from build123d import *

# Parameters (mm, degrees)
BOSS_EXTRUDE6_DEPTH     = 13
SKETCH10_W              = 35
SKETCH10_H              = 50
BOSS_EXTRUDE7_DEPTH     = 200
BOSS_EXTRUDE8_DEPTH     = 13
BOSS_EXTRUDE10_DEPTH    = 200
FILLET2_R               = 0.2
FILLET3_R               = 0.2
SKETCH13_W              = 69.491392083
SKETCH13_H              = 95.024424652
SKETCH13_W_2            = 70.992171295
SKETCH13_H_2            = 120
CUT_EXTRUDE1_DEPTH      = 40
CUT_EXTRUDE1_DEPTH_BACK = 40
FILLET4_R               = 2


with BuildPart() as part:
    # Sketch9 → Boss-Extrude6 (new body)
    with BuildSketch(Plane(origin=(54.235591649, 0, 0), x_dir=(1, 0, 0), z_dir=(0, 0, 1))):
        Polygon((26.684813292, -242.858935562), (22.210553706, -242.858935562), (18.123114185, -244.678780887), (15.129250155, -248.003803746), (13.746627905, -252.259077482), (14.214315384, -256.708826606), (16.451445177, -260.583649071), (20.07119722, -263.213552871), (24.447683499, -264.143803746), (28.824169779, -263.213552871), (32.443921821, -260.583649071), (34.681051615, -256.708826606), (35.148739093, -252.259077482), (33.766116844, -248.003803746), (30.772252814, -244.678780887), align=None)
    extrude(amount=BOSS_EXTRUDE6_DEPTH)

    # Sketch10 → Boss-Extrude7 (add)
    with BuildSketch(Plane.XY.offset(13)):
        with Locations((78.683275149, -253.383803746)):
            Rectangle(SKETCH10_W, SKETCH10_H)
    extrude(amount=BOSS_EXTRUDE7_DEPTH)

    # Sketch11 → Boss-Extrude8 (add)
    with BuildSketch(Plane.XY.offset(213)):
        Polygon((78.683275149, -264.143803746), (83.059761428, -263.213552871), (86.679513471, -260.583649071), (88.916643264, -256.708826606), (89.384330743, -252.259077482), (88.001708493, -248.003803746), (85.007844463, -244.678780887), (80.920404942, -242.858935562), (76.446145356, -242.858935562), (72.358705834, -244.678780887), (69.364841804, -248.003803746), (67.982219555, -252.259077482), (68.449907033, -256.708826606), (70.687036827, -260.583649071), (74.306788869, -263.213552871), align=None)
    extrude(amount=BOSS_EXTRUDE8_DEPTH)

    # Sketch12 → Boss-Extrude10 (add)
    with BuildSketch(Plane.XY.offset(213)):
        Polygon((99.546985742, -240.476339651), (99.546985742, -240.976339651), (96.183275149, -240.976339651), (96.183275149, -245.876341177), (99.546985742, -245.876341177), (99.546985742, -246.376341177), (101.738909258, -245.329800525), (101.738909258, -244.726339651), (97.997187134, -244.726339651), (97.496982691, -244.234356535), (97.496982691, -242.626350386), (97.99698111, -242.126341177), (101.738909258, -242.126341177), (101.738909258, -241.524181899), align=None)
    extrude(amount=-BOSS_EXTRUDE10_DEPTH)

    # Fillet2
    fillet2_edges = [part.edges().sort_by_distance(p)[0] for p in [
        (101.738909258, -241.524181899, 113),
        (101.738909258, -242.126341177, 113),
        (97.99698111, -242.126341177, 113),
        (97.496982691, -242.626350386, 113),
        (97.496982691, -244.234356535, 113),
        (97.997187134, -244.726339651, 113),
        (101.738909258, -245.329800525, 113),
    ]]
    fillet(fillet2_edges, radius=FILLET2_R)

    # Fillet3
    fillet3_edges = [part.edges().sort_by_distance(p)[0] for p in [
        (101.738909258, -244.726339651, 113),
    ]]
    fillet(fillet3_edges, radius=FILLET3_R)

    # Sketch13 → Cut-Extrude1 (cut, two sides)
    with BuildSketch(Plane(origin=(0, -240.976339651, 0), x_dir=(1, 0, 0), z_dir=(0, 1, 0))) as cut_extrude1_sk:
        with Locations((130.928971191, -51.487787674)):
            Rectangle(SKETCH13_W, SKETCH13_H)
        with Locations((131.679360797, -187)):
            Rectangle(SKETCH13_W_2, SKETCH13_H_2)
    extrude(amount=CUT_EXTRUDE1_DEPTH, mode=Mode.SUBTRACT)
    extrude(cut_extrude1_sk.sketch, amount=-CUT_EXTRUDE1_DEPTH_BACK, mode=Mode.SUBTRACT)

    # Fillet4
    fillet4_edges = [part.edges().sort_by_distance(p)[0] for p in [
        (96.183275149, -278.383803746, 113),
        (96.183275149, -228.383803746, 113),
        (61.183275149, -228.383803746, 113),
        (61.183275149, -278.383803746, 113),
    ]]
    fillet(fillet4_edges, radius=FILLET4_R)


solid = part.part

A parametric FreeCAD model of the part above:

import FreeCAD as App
import Part
import Sketcher

V = App.Vector
Q = App.Units.Quantity


def edges_at(feature, points):
    """Names of the edges that pass closest to the given points."""
    edges = feature.Shape.Edges
    near = lambda p: min(range(len(edges)), key=lambda i: edges[i].distToShape(Part.Vertex(*p))[0])
    return sorted({f"Edge{near(p) + 1}" for p in points})


def add_polygon(sketch, points):
    """Adds a closed chain of lines whose ends are joined by coincident constraints."""
    first, n = sketch.GeometryCount, len(points)
    for a, b in zip(points, points[1:] + points[:1]):
        sketch.addGeometry(Part.LineSegment(App.Vector(*a, 0), App.Vector(*b, 0)), False)
    for i in range(n):
        sketch.addConstraint(Sketcher.Constraint("Coincident", first + i, 2, first + (i + 1) % n, 1))

doc = App.newDocument("Part")
body = doc.addObject("PartDesign::Body", "Body")

sketch1 = body.newObject("Sketcher::SketchObject", "Sketch")
sketch1.AttachmentSupport = (doc.getObject("XY_Plane"), [""])
sketch1.MapMode = "FlatFace"
add_polygon(sketch1, [(80.9, -242.9), (76.4, -242.9), (72.4, -244.7), (69.4, -248), (68, -252.3), (68.4, -256.7), (70.7, -260.6), (74.3, -263.2), (78.7, -264.1), (83.1, -263.2), (86.7, -260.6), (88.9, -256.7), (89.4, -252.3), (88, -248), (85, -244.7)])
sketch1.addConstraint(Sketcher.Constraint("Horizontal", 0))
sketch1.addConstraint(Sketcher.Constraint("Horizontal", 6, 2, 8, 2))
sketch1.addConstraint(Sketcher.Constraint("Horizontal", 5, 2, 9, 2))
sketch1.addConstraint(Sketcher.Constraint("Horizontal", 4, 2, 10, 2))
sketch1.addConstraint(Sketcher.Constraint("Horizontal", 3, 2, 11, 2))
sketch1.addConstraint(Sketcher.Constraint("Horizontal", 2, 2, 12, 2))
sketch1.addConstraint(Sketcher.Constraint("Horizontal", 1, 2, 13, 2))
sketch1.addConstraint(Sketcher.Constraint("Equal", 1, 2))
sketch1.addConstraint(Sketcher.Constraint("Equal", 2, 3))
sketch1.addConstraint(Sketcher.Constraint("Equal", 3, 4))
sketch1.addConstraint(Sketcher.Constraint("Equal", 4, 5))
sketch1.addConstraint(Sketcher.Constraint("Equal", 5, 6))
sketch1.addConstraint(Sketcher.Constraint("Equal", 6, 7))
sketch1.addConstraint(Sketcher.Constraint("Equal", 7, 8))
sketch1.addConstraint(Sketcher.Constraint("Equal", 8, 9))
sketch1.addConstraint(Sketcher.Constraint("Equal", 9, 10))
sketch1.addConstraint(Sketcher.Constraint("Equal", 10, 11))
sketch1.addConstraint(Sketcher.Constraint("Equal", 11, 12))
sketch1.addConstraint(Sketcher.Constraint("Equal", 12, 13))
sketch1.addConstraint(Sketcher.Constraint("Equal", 13, 14))
sketch1.addConstraint(Sketcher.Constraint("Angle", 1, Q("-156 deg")))
sketch1.addConstraint(Sketcher.Constraint("Angle", 2, Q("-132 deg")))
sketch1.addConstraint(Sketcher.Constraint("Angle", 3, Q("-108 deg")))
sketch1.addConstraint(Sketcher.Constraint("Angle", 4, Q("-84 deg")))
sketch1.addConstraint(Sketcher.Constraint("Angle", 5, Q("-60 deg")))
sketch1.addConstraint(Sketcher.Constraint("Angle", 6, Q("-36 deg")))
sketch1.addConstraint(Sketcher.Constraint("Angle", 7, Q("-12 deg")))
sketch1.addConstraint(Sketcher.Constraint("DistanceY", 7, 2, 2, 2, 16.14))
sketch1.addConstraint(Sketcher.Constraint("DistanceY", 1, 2, -1, 1, 244.678781))
sketch1.addConstraint(Sketcher.Constraint("DistanceX", -1, 1, 2, 2, 69.364842))
pad1 = body.newObject("PartDesign::Pad", "Pad")
pad1.Profile = sketch1
pad1.Length = 13

sketch2 = body.newObject("Sketcher::SketchObject", "Sketch001")
sketch2.AttachmentSupport = (doc.getObject("XY_Plane"), [""])
sketch2.MapMode = "FlatFace"
sketch2.AttachmentOffset = App.Placement(V(0, 0, 13), App.Rotation())
add_polygon(sketch2, [(61, -228), (61, -278), (96, -278), (96, -228)])
sketch2.addConstraint(Sketcher.Constraint("Vertical", 0))
sketch2.addConstraint(Sketcher.Constraint("Horizontal", 1))
sketch2.addConstraint(Sketcher.Constraint("Vertical", 2))
sketch2.addConstraint(Sketcher.Constraint("Horizontal", 3))
sketch2.addConstraint(Sketcher.Constraint("DistanceX", 1, 1, 1, 2, 35.0))
sketch2.addConstraint(Sketcher.Constraint("DistanceY", 0, 2, 0, 1, 50.0))
sketch2.addConstraint(Sketcher.Constraint("DistanceX", -1, 1, 0, 2, 61.183275))
sketch2.addConstraint(Sketcher.Constraint("DistanceY", 0, 2, -1, 1, 278.383804))
pad2 = body.newObject("PartDesign::Pad", "Pad001")
pad2.Profile = sketch2
pad2.Length = 200

sketch3 = body.newObject("Sketcher::SketchObject", "Sketch002")
sketch3.AttachmentSupport = (doc.getObject("XY_Plane"), [""])
sketch3.MapMode = "FlatFace"
sketch3.AttachmentOffset = App.Placement(V(0, 0, 213), App.Rotation())
add_polygon(sketch3, [(78.7, -264.1), (83.1, -263.2), (86.7, -260.6), (88.9, -256.7), (89.4, -252.3), (88, -248), (85, -244.7), (80.9, -242.9), (76.4, -242.9), (72.4, -244.7), (69.4, -248), (68, -252.3), (68.4, -256.7), (70.7, -260.6), (74.3, -263.2)])
sketch3.addConstraint(Sketcher.Constraint("Horizontal", 7))
sketch3.addConstraint(Sketcher.Constraint("Horizontal", 5, 2, 8, 2))
sketch3.addConstraint(Sketcher.Constraint("Horizontal", 4, 2, 9, 2))
sketch3.addConstraint(Sketcher.Constraint("Horizontal", 3, 2, 10, 2))
sketch3.addConstraint(Sketcher.Constraint("Horizontal", 2, 2, 11, 2))
sketch3.addConstraint(Sketcher.Constraint("Horizontal", 1, 2, 12, 2))
sketch3.addConstraint(Sketcher.Constraint("Horizontal", 0, 2, 13, 2))
sketch3.addConstraint(Sketcher.Constraint("Equal", 0, 1))
sketch3.addConstraint(Sketcher.Constraint("Equal", 1, 2))
sketch3.addConstraint(Sketcher.Constraint("Equal", 2, 3))
sketch3.addConstraint(Sketcher.Constraint("Equal", 3, 4))
sketch3.addConstraint(Sketcher.Constraint("Equal", 4, 5))
sketch3.addConstraint(Sketcher.Constraint("Equal", 5, 6))
sketch3.addConstraint(Sketcher.Constraint("Equal", 6, 8))
sketch3.addConstraint(Sketcher.Constraint("Equal", 8, 9))
sketch3.addConstraint(Sketcher.Constraint("Equal", 9, 10))
sketch3.addConstraint(Sketcher.Constraint("Equal", 10, 11))
sketch3.addConstraint(Sketcher.Constraint("Equal", 11, 12))
sketch3.addConstraint(Sketcher.Constraint("Equal", 12, 13))
sketch3.addConstraint(Sketcher.Constraint("Equal", 13, 14))
sketch3.addConstraint(Sketcher.Constraint("Angle", 0, Q("12 deg")))
sketch3.addConstraint(Sketcher.Constraint("Angle", 1, Q("36 deg")))
sketch3.addConstraint(Sketcher.Constraint("Angle", 2, Q("60 deg")))
sketch3.addConstraint(Sketcher.Constraint("Angle", 3, Q("84 deg")))
sketch3.addConstraint(Sketcher.Constraint("Angle", 4, Q("108 deg")))
sketch3.addConstraint(Sketcher.Constraint("Angle", 5, Q("132 deg")))
sketch3.addConstraint(Sketcher.Constraint("Angle", 6, Q("156 deg")))
sketch3.addConstraint(Sketcher.Constraint("DistanceX", 7, 2, 7, 1, 4.47426))
sketch3.addConstraint(Sketcher.Constraint("DistanceX", -1, 1, 0, 2, 83.059761))
sketch3.addConstraint(Sketcher.Constraint("DistanceY", 1, 2, -1, 1, 260.583649))
pad3 = body.newObject("PartDesign::Pad", "Pad002")
pad3.Profile = sketch3
pad3.Length = 13

sketch4 = body.newObject("Sketcher::SketchObject", "Sketch003")
sketch4.AttachmentSupport = (doc.getObject("XY_Plane"), [""])
sketch4.MapMode = "FlatFace"
sketch4.AttachmentOffset = App.Placement(V(0, 0, 213), App.Rotation())
add_polygon(sketch4, [(99.5, -240.5), (99.5, -241), (96.2, -241), (96.2, -245.9), (99.5, -245.9), (99.5, -246.4), (101.7, -245.3), (101.7, -244.7), (98, -244.7), (97.5, -244.2), (97.5, -242.6), (98, -242.1), (101.7, -242.1), (101.7, -241.5)])
sketch4.addConstraint(Sketcher.Constraint("Vertical", 0))
sketch4.addConstraint(Sketcher.Constraint("Horizontal", 1))
sketch4.addConstraint(Sketcher.Constraint("Vertical", 2))
sketch4.addConstraint(Sketcher.Constraint("Horizontal", 3))
sketch4.addConstraint(Sketcher.Constraint("Vertical", 4))
sketch4.addConstraint(Sketcher.Constraint("Vertical", 6))
sketch4.addConstraint(Sketcher.Constraint("Horizontal", 7))
sketch4.addConstraint(Sketcher.Constraint("Vertical", 9))
sketch4.addConstraint(Sketcher.Constraint("Horizontal", 11))
sketch4.addConstraint(Sketcher.Constraint("Vertical", 12))
sketch4.addConstraint(Sketcher.Constraint("Vertical", 0, 2, 3, 2))
sketch4.addConstraint(Sketcher.Constraint("Vertical", 6, 2, 11, 2))
sketch4.addConstraint(Sketcher.Constraint("Equal", 0, 4))
sketch4.addConstraint(Sketcher.Constraint("DistanceY", 0, 2, 0, 1, 0.5))
sketch4.addConstraint(Sketcher.Constraint("DistanceY", 2, 2, 2, 1, 4.900002))
sketch4.addConstraint(Sketcher.Constraint("Angle", 13, Q("154.450013 deg")))
sketch4.addConstraint(Sketcher.Constraint("DistanceX", 9, 2, 10, 2, 0.499998))
sketch4.addConstraint(Sketcher.Constraint("DistanceY", 7, 2, 10, 2, 2.599998))
sketch4.addConstraint(Sketcher.Constraint("DistanceY", 3, 2, 6, 2, 1.150002))
sketch4.addConstraint(Sketcher.Constraint("DistanceX", 1, 2, 1, 1, 3.363711))
sketch4.addConstraint(Sketcher.Constraint("DistanceX", 11, 1, 11, 2, 3.741928))
sketch4.addConstraint(Sketcher.Constraint("DistanceY", 6, 1, 6, 2, 0.603461))
sketch4.addConstraint(Sketcher.Constraint("DistanceY", 12, 1, 12, 2, 0.602159))
sketch4.addConstraint(Sketcher.Constraint("DistanceY", 5, 2, -1, 1, 245.329801))
sketch4.addConstraint(Sketcher.Constraint("DistanceX", 7, 2, 3, 2, 1.549799))
sketch4.addConstraint(Sketcher.Constraint("DistanceY", 9, 1, 9, 2, 1.608006))
sketch4.addConstraint(Sketcher.Constraint("DistanceX", -1, 1, 5, 2, 101.738909))
sketch4.addConstraint(Sketcher.Constraint("DistanceY", 9, 2, -1, 1, 242.62635))
pad4 = body.newObject("PartDesign::Pad", "Pad003")
pad4.Profile = sketch4
pad4.Length = 200
pad4.Reversed = True
doc.recompute()

fillet = body.newObject("PartDesign::Fillet", "Fillet")
fillet.Base = (pad4, edges_at(pad4, [
    (101.739, -241.524, 113),
    (101.739, -242.126, 113),
    (97.997, -242.126, 113),
    (97.497, -242.626, 113),
    (97.497, -244.234, 113),
    (97.997, -244.726, 113),
    (101.739, -245.33, 113),
]))
fillet.Radius = 0.2
doc.recompute()

fillet2 = body.newObject("PartDesign::Fillet", "Fillet001")
fillet2.Base = (fillet, edges_at(fillet, [(101.739, -244.726, 113)]))
fillet2.Radius = 0.2

sketch5 = body.newObject("Sketcher::SketchObject", "Sketch004")
sketch5.AttachmentSupport = (doc.getObject("XZ_Plane"), [""])
sketch5.MapMode = "FlatFace"
sketch5.AttachmentOffset = App.Placement(V(0, 0, 240.97634), App.Rotation())
add_polygon(sketch5, [(96, 4), (96, 99), (166, 99), (166, 4)])
add_polygon(sketch5, [(96, 127), (96, 247), (167, 247), (167, 127)])
sketch5.addConstraint(Sketcher.Constraint("Vertical", 0))
sketch5.addConstraint(Sketcher.Constraint("Horizontal", 1))
sketch5.addConstraint(Sketcher.Constraint("Vertical", 2))
sketch5.addConstraint(Sketcher.Constraint("Horizontal", 3))
sketch5.addConstraint(Sketcher.Constraint("Vertical", 4))
sketch5.addConstraint(Sketcher.Constraint("Horizontal", 5))
sketch5.addConstraint(Sketcher.Constraint("Vertical", 6))
sketch5.addConstraint(Sketcher.Constraint("Horizontal", 7))
sketch5.addConstraint(Sketcher.Constraint("Vertical", 3, 2, 4, 2))
sketch5.addConstraint(Sketcher.Constraint("DistanceY", 4, 1, 4, 2, 120.0))
sketch5.addConstraint(Sketcher.Constraint("DistanceY", -1, 1, 0, 2, 99.0))
sketch5.addConstraint(Sketcher.Constraint("DistanceY", -1, 1, 4, 2, 247.0))
sketch5.addConstraint(Sketcher.Constraint("DistanceX", 5, 1, 5, 2, 70.992171))
sketch5.addConstraint(Sketcher.Constraint("DistanceX", 1, 1, 1, 2, 69.491392))
sketch5.addConstraint(Sketcher.Constraint("DistanceY", 0, 1, 0, 2, 95.024425))
sketch5.addConstraint(Sketcher.Constraint("DistanceX", -1, 1, 0, 2, 96.183275))
pocket1 = body.newObject("PartDesign::Pocket", "Pocket")
pocket1.Profile = sketch5
pocket1.Type = "ThroughAll"
pocket1.Midplane = True
doc.recompute()

fillet3 = body.newObject("PartDesign::Fillet", "Fillet002")
fillet3.Base = (pocket1, edges_at(pocket1, [
    (96.183, -278.384, 113),
    (96.183, -228.384, 113),
    (61.183, -228.384, 113),
    (61.183, -278.384, 113),
]))
fillet3.Radius = 2

doc.recompute()
